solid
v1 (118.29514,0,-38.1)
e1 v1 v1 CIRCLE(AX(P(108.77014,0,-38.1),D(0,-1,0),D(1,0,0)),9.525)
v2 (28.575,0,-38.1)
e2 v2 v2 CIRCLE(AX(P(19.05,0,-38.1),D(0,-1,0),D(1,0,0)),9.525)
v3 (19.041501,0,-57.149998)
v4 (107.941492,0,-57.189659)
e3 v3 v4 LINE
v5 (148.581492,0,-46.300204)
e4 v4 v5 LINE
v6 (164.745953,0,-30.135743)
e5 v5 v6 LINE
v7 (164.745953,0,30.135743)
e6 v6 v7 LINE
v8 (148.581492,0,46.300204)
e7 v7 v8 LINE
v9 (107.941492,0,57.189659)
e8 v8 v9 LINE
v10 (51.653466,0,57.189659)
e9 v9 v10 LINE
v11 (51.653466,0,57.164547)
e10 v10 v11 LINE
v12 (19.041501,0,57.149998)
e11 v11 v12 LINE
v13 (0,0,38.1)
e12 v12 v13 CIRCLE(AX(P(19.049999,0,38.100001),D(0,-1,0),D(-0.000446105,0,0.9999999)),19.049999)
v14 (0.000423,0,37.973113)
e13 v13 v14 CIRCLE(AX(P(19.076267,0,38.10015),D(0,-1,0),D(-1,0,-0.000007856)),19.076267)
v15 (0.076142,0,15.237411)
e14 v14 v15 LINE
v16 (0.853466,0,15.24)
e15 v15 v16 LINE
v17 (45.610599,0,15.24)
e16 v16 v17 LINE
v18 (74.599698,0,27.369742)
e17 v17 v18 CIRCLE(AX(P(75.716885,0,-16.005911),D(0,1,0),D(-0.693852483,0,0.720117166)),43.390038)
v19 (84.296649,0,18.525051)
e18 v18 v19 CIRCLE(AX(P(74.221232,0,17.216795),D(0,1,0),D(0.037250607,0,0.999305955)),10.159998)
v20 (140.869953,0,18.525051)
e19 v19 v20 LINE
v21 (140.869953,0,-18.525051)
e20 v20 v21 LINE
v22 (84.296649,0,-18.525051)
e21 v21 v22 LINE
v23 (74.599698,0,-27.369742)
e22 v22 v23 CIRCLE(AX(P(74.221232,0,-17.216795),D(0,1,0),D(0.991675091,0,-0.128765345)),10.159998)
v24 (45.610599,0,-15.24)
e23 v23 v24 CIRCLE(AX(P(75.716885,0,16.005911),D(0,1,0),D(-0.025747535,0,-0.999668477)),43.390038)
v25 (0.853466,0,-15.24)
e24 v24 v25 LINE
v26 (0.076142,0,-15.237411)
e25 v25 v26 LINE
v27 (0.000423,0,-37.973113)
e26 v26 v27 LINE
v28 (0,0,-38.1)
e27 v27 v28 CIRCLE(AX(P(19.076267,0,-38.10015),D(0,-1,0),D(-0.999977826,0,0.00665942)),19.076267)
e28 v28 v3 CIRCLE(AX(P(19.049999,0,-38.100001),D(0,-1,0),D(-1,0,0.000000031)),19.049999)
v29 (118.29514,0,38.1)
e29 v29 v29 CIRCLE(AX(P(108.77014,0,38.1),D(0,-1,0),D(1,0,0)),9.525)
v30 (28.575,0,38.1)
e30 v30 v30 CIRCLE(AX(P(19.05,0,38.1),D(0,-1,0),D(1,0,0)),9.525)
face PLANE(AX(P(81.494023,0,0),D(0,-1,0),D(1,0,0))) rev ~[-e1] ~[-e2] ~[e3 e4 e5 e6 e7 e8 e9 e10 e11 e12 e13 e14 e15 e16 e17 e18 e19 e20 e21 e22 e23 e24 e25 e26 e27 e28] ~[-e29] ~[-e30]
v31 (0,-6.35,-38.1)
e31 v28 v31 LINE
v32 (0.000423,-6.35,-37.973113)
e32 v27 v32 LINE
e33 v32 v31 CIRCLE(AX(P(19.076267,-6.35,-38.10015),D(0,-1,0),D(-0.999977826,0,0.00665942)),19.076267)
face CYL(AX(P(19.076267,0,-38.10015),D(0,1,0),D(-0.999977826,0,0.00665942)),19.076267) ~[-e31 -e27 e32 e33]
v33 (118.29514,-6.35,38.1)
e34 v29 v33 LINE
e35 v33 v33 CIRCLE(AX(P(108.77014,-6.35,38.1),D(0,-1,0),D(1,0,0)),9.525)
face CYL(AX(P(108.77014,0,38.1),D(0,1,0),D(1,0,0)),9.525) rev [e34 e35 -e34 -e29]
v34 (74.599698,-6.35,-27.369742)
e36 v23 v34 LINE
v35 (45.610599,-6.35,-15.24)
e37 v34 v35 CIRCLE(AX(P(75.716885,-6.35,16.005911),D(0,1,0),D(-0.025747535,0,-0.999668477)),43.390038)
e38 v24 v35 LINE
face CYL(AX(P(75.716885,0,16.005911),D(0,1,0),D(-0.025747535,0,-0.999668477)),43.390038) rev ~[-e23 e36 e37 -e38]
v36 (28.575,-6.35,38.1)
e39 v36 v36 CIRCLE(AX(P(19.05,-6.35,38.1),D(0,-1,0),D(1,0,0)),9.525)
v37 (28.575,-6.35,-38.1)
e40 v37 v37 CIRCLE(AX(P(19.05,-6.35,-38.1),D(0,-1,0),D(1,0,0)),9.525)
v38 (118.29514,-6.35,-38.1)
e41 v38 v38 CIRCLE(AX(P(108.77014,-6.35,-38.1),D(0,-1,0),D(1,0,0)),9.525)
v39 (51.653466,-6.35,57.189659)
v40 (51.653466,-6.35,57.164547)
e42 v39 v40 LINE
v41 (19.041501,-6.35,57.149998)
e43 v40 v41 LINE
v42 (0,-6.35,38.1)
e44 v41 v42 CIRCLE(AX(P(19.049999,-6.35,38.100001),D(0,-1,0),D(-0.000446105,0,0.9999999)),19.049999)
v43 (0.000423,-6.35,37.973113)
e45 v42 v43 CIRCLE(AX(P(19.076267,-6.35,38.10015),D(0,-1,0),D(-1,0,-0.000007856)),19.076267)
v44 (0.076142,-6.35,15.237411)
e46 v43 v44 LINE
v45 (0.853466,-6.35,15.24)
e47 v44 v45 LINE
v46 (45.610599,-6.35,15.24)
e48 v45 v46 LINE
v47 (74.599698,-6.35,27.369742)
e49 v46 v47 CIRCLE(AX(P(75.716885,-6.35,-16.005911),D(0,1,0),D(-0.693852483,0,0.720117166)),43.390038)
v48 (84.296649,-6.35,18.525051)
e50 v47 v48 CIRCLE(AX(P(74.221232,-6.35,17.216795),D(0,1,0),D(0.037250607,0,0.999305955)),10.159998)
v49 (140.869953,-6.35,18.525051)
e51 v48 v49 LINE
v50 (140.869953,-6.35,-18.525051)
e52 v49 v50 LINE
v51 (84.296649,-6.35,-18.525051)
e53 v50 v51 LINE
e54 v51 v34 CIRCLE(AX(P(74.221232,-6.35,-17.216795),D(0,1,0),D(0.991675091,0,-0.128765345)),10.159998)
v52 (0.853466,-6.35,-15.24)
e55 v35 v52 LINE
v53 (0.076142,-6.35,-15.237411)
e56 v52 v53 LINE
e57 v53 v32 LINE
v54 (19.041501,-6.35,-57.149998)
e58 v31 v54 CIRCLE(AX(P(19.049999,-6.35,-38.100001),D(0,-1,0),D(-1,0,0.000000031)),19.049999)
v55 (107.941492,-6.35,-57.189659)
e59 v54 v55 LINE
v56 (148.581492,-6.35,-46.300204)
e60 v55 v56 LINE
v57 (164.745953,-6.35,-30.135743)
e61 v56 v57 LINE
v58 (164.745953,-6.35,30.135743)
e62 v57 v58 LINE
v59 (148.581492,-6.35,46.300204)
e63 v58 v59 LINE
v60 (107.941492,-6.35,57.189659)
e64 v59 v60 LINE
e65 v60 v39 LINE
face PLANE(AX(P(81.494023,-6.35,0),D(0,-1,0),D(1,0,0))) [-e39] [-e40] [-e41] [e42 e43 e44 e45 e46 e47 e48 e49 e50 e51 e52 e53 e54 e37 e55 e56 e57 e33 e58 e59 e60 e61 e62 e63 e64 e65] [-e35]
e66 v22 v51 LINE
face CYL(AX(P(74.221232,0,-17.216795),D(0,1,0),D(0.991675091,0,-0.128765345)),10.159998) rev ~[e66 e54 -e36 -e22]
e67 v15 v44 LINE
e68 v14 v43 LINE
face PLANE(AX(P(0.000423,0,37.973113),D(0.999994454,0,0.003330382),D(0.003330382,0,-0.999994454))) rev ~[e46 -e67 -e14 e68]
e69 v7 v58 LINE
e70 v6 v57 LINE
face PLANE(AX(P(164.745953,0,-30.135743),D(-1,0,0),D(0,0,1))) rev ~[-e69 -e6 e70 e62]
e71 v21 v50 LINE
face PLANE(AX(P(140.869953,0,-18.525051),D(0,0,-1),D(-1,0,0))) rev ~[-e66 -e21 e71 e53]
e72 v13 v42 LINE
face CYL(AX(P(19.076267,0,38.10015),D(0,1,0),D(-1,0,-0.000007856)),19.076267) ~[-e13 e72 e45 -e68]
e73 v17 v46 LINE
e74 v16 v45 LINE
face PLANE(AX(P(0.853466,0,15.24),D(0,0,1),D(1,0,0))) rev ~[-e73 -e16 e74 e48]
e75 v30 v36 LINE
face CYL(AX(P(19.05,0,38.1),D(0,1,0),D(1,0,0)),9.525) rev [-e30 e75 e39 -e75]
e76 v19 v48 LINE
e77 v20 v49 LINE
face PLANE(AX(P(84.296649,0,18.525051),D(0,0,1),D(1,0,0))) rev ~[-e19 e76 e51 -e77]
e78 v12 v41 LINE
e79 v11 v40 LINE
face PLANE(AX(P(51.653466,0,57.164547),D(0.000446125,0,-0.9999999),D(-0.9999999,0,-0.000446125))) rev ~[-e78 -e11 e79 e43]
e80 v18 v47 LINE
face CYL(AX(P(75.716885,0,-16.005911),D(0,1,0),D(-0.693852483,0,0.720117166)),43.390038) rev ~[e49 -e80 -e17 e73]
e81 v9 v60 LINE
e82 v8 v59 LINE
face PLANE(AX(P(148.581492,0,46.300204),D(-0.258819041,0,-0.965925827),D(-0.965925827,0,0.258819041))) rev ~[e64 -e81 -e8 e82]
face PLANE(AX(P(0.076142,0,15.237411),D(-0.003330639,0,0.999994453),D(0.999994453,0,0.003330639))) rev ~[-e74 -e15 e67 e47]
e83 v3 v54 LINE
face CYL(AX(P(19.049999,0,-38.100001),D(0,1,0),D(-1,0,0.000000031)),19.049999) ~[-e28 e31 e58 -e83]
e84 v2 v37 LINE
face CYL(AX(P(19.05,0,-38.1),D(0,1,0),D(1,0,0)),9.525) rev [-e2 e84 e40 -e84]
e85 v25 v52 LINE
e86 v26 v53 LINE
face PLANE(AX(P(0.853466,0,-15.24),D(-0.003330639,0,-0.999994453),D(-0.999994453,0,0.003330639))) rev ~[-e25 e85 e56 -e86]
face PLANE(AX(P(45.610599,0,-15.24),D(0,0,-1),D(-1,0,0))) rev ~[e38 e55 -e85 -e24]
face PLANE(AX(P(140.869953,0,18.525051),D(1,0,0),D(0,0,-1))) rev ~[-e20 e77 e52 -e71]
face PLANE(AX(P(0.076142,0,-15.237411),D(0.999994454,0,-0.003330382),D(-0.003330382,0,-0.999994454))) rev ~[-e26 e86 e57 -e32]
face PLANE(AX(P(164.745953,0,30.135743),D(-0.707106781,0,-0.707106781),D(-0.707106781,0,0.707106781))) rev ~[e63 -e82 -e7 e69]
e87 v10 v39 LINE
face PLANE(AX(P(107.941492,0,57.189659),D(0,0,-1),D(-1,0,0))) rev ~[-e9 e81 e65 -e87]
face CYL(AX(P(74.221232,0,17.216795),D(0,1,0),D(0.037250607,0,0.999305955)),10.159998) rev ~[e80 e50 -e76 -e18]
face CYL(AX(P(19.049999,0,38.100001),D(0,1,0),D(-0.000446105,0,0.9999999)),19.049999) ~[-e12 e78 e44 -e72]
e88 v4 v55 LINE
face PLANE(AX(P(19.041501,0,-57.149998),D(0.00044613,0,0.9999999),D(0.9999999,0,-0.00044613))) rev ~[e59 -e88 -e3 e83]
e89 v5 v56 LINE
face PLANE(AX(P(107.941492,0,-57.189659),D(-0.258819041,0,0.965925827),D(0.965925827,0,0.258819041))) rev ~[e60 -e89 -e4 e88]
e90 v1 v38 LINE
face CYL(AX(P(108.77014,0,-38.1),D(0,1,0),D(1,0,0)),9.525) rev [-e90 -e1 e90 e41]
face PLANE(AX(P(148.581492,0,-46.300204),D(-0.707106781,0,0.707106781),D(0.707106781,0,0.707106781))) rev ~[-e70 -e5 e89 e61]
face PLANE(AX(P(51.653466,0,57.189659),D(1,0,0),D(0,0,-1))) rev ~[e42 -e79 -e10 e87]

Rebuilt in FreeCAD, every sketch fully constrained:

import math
import FreeCAD as App
import Part
import Sketcher
Q = App.Units.Quantity

doc = App.newDocument("Part")
body = doc.addObject("PartDesign::Body", "Body")

sketch1 = body.newObject("Sketcher::SketchObject", "Sketch")
sketch1.AttachmentSupport = (doc.getObject("XZ_Plane"), [""])
sketch1.MapMode = "FlatFace"
sketch1.addGeometry(Part.LineSegment(App.Vector(0.076142, 15.237411, 0), App.Vector(0.853466, 15.24, 0)), False)
sketch1.addGeometry(Part.LineSegment(App.Vector(0.853466, 15.24, 0), App.Vector(45.610599, 15.24, 0)), False)
sketch1.addGeometry(Part.ArcOfCircle(Part.Circle(App.Vector(75.716885, -16.005911, 0), App.Vector(0, 0, 1), 43.390038), math.radians(91.475388), math.radians(133.935845)), False)
sketch1.addGeometry(Part.ArcOfCircle(Part.Circle(App.Vector(74.221232, 17.216795, 0), App.Vector(0, 0, 1), 10.159998), math.radians(7.398252), math.radians(87.865204)), False)
sketch1.addGeometry(Part.LineSegment(App.Vector(84.296649, 18.525051, 0), App.Vector(140.869953, 18.525051, 0)), False)
sketch1.addGeometry(Part.LineSegment(App.Vector(140.869953, 18.525051, 0), App.Vector(140.869953, -18.525051, 0)), False)
sketch1.addGeometry(Part.LineSegment(App.Vector(140.869953, -18.525051, 0), App.Vector(84.296649, -18.525051, 0)), False)
sketch1.addGeometry(Part.ArcOfCircle(Part.Circle(App.Vector(74.221232, -17.216795, 0), App.Vector(0, 0, 1), 10.159998), math.radians(-87.865204), math.radians(-7.398252)), False)
sketch1.addGeometry(Part.ArcOfCircle(Part.Circle(App.Vector(75.716885, 16.005911, 0), App.Vector(0, 0, 1), 43.390038), math.radians(-133.935845), math.radians(-91.475388)), False)
sketch1.addGeometry(Part.LineSegment(App.Vector(45.610599, -15.24, 0), App.Vector(0.853466, -15.24, 0)), False)
sketch1.addGeometry(Part.LineSegment(App.Vector(0.853466, -15.24, 0), App.Vector(0.076142, -15.237411, 0)), False)
sketch1.addGeometry(Part.LineSegment(App.Vector(0.076142, -15.237411, 0), App.Vector(0.000423, -37.973113, 0)), False)
sketch1.addGeometry(Part.ArcOfCircle(Part.Circle(App.Vector(19.076267, -38.10015, 0), App.Vector(0, 0, 1), 19.076267), math.radians(179.618441), math.radians(179.99955)), False)
sketch1.addGeometry(Part.ArcOfCircle(Part.Circle(App.Vector(19.049999, -38.100001, 0), App.Vector(0, 0, 1), 19.049999), math.radians(179.999998), math.radians(269.97444)), False)
sketch1.addGeometry(Part.LineSegment(App.Vector(19.041501, -57.149998, 0), App.Vector(107.941492, -57.189659, 0)), False)
sketch1.addGeometry(Part.LineSegment(App.Vector(107.941492, -57.189659, 0), App.Vector(148.581492, -46.300204, 0)), False)
sketch1.addGeometry(Part.LineSegment(App.Vector(148.581492, -46.300204, 0), App.Vector(164.745953, -30.135743, 0)), False)
sketch1.addGeometry(Part.LineSegment(App.Vector(164.745953, -30.135743, 0), App.Vector(164.745953, 30.135743, 0)), False)
sketch1.addGeometry(Part.LineSegment(App.Vector(164.745953, 30.135743, 0), App.Vector(148.581492, 46.300204, 0)), False)
sketch1.addGeometry(Part.LineSegment(App.Vector(148.581492, 46.300204, 0), App.Vector(107.941492, 57.189659, 0)), False)
sketch1.addGeometry(Part.LineSegment(App.Vector(107.941492, 57.189659, 0), App.Vector(51.653466, 57.189659, 0)), False)
sketch1.addGeometry(Part.LineSegment(App.Vector(51.653466, 57.189659, 0), App.Vector(51.653466, 57.164547, 0)), False)
sketch1.addGeometry(Part.LineSegment(App.Vector(51.653466, 57.164547, 0), App.Vector(19.041501, 57.149998, 0)), False)
sketch1.addGeometry(Part.ArcOfCircle(Part.Circle(App.Vector(19.049999, 38.100001, 0), App.Vector(0, 0, 1), 19.049999), math.radians(90.02556), math.radians(180.000002)), False)
sketch1.addGeometry(Part.ArcOfCircle(Part.Circle(App.Vector(19.076267, 38.10015, 0), App.Vector(0, 0, 1), 19.076267), math.radians(-179.99955), math.radians(-179.618441)), False)
sketch1.addGeometry(Part.LineSegment(App.Vector(0.000423, 37.973113, 0), App.Vector(0.076142, 15.237411, 0)), False)
sketch1.addGeometry(Part.Circle(App.Vector(19.05, -38.1, 0), App.Vector(0, 0, 1), 9.525), False)
sketch1.addGeometry(Part.Circle(App.Vector(108.77014, -38.1, 0), App.Vector(0, 0, 1), 9.525), False)
sketch1.addGeometry(Part.Circle(App.Vector(19.05, 38.1, 0), App.Vector(0, 0, 1), 9.525), False)
sketch1.addGeometry(Part.Circle(App.Vector(108.77014, 38.1, 0), App.Vector(0, 0, 1), 9.525), False)
sketch1.addConstraint(Sketcher.Constraint("Coincident", 0, 2, 1, 1))
sketch1.addConstraint(Sketcher.Constraint("Coincident", 1, 2, 2, 2))
sketch1.addConstraint(Sketcher.Constraint("Coincident", 2, 1, 3, 2))
sketch1.addConstraint(Sketcher.Constraint("Coincident", 3, 1, 4, 1))
sketch1.addConstraint(Sketcher.Constraint("Coincident", 4, 2, 5, 1))
sketch1.addConstraint(Sketcher.Constraint("Coincident", 5, 2, 6, 1))
sketch1.addConstraint(Sketcher.Constraint("Coincident", 6, 2, 7, 2))
sketch1.addConstraint(Sketcher.Constraint("Coincident", 7, 1, 8, 2))
sketch1.addConstraint(Sketcher.Constraint("Coincident", 8, 1, 9, 1))
sketch1.addConstraint(Sketcher.Constraint("Coincident", 9, 2, 10, 1))
sketch1.addConstraint(Sketcher.Constraint("Coincident", 10, 2, 11, 1))
sketch1.addConstraint(Sketcher.Constraint("Coincident", 11, 2, 12, 1))
sketch1.addConstraint(Sketcher.Constraint("Coincident", 12, 2, 13, 1))
sketch1.addConstraint(Sketcher.Constraint("Tangent", 13, 2, 14, 1))
sketch1.addConstraint(Sketcher.Constraint("Coincident", 14, 2, 15, 1))
sketch1.addConstraint(Sketcher.Constraint("Coincident", 15, 2, 16, 1))
sketch1.addConstraint(Sketcher.Constraint("Coincident", 16, 2, 17, 1))
sketch1.addConstraint(Sketcher.Constraint("Coincident", 17, 2, 18, 1))
sketch1.addConstraint(Sketcher.Constraint("Coincident", 18, 2, 19, 1))
sketch1.addConstraint(Sketcher.Constraint("Coincident", 19, 2, 20, 1))
sketch1.addConstraint(Sketcher.Constraint("Coincident", 20, 2, 21, 1))
sketch1.addConstraint(Sketcher.Constraint("Coincident", 21, 2, 22, 1))
sketch1.addConstraint(Sketcher.Constraint("Tangent", 22, 2, 23, 1))
sketch1.addConstraint(Sketcher.Constraint("Coincident", 23, 2, 24, 1))
sketch1.addConstraint(Sketcher.Constraint("Coincident", 24, 2, 25, 1))
sketch1.addConstraint(Sketcher.Constraint("Coincident", 25, 2, 0, 1))
sketch1.addConstraint(Sketcher.Constraint("Horizontal", 1))
sketch1.addConstraint(Sketcher.Constraint("Horizontal", 4))
sketch1.addConstraint(Sketcher.Constraint("Vertical", 5))
sketch1.addConstraint(Sketcher.Constraint("Horizontal", 6))
sketch1.addConstraint(Sketcher.Constraint("Horizontal", 9))
sketch1.addConstraint(Sketcher.Constraint("Vertical", 17))
sketch1.addConstraint(Sketcher.Constraint("Horizontal", 20))
sketch1.addConstraint(Sketcher.Constraint("Vertical", 21))
sketch1.addConstraint(Sketcher.Constraint("Coincident", 26, 3, 13, 3))
sketch1.addConstraint(Sketcher.Constraint("Coincident", 28, 3, 23, 3))
sketch1.addConstraint(Sketcher.Constraint("Equal", 3, 7))
sketch1.addConstraint(Sketcher.Constraint("Equal", 2, 8))
sketch1.addConstraint(Sketcher.Constraint("Equal", 13, 23))
sketch1.addConstraint(Sketcher.Constraint("Equal", 12, 24))
sketch1.addConstraint(Sketcher.Constraint("Equal", 26, 27))
sketch1.addConstraint(Sketcher.Constraint("Equal", 27, 28))
sketch1.addConstraint(Sketcher.Constraint("Equal", 28, 29))
sketch1.addConstraint(Sketcher.Constraint("Symmetric", 12, 2, 23, 2, -1, 1))
sketch1.addConstraint(Sketcher.Constraint("Symmetric", 3, 3, 7, 3, -1))
sketch1.addConstraint(Sketcher.Constraint("Symmetric", 2, 3, 8, 3, -1))
sketch1.addConstraint(Sketcher.Constraint("Symmetric", 13, 3, 23, 3, -1))
sketch1.addConstraint(Sketcher.Constraint("Symmetric", 27, 3, 29, 3, -1))
sketch1.addConstraint(Sketcher.Constraint("Symmetric", 0, 2, 9, 2, -1))
sketch1.addConstraint(Sketcher.Constraint("Symmetric", 15, 2, 18, 2, -1))
sketch1.addConstraint(Sketcher.Constraint("Symmetric", 14, 2, 19, 2, -1))
sketch1.addConstraint(Sketcher.Constraint("Symmetric", 11, 2, 24, 2, -1))
sketch1.addConstraint(Sketcher.Constraint("Symmetric", 10, 2, 25, 2, -1))
sketch1.addConstraint(Sketcher.Constraint("Perpendicular", 10, 11))
sketch1.addConstraint(Sketcher.Constraint("Perpendicular", 16, 18))
sketch1.addConstraint(Sketcher.Constraint("Horizontal", 26, 3, 27, 3))
sketch1.addConstraint(Sketcher.Constraint("Horizontal", 27, 3, 12, 2))
sketch1.addConstraint(Sketcher.Constraint("Vertical", 3, 1, 6, 2))
sketch1.addConstraint(Sketcher.Constraint("Vertical", 13, 2, 22, 2))
sketch1.addConstraint(Sketcher.Constraint("Equal", 16, 18))
sketch1.addConstraint(Sketcher.Constraint("Radius", 3, Q("0.3999999 in")))
sketch1.addConstraint(Sketcher.Constraint("Diameter", 26, Q("0.75 in")))
sketch1.addConstraint(Sketcher.Constraint("Radius", 13, Q("0.75 in")))
sketch1.addConstraint(Sketcher.Constraint("Angle", 15, Q("15 deg")))
sketch1.addConstraint(Sketcher.Constraint("DistanceY", 13, 3, 23, 3, Q("3 in")))
sketch1.addConstraint(Sketcher.Constraint("Distance", 14, Q("3.5 in")))
sketch1.addConstraint(Sketcher.Constraint("Distance", 16, Q("0.9 in")))
sketch1.addConstraint(Sketcher.Constraint("DistanceY", -1, 1, 0, 2, Q("0.6 in")))
sketch1.addConstraint(Sketcher.Constraint("DistanceX", 14, 2, 15, 2, Q("1.6 in")))
sketch1.addConstraint(Sketcher.Constraint("DistanceX", 5, 2, 16, 2, Q("0.94 in")))
sketch1.addConstraint(Sketcher.Constraint("Radius", 2, Q("43.390038 mm")))
sketch1.addConstraint(Sketcher.Constraint("Radius", 12, Q("19.076267 mm")))
sketch1.addConstraint(Sketcher.Constraint("DistanceX", -1, 1, 1, 2, Q("45.610599 mm")))
sketch1.addConstraint(Sketcher.Constraint("DistanceX", -1, 1, 2, 1, Q("74.599698 mm")))
sketch1.addConstraint(Sketcher.Constraint("DistanceX", -1, 1, 13, 2, Q("19.041501 mm")))
sketch1.addConstraint(Sketcher.Constraint("DistanceY", 12, 3, 24, 3, Q("76.2003 mm")))
sketch1.addConstraint(Sketcher.Constraint("DistanceX", 0, 2, 24, 3, Q("18.222801 mm")))
sketch1.addConstraint(Sketcher.Constraint("DistanceY", 11, 2, 10, 2, Q("22.735702 mm")))
sketch1.addConstraint(Sketcher.Constraint("DistanceX", 24, 3, 20, 2, Q("32.577199 mm")))
sketch1.addConstraint(Sketcher.Constraint("Distance", 0, Q("0.777328 mm")))
sketch1.addConstraint(Sketcher.Constraint("DistanceX", 4, 1, 4, 2, Q("56.573304 mm")))
sketch1.addConstraint(Sketcher.Constraint("DistanceY", 5, 2, 5, 1, Q("37.050102 mm")))
sketch1.addConstraint(Sketcher.Constraint("DistanceY", 2, 3, -1, 1, Q("16.005911 mm")))
sketch1.addConstraint(Sketcher.Constraint("DistanceX", -1, 1, 27, 3, Q("108.77014 mm")))
pad1 = body.newObject("PartDesign::Pad", "Pad")
pad1.Profile = sketch1
pad1.Length = Q("0.25 in")

doc.recompute()
